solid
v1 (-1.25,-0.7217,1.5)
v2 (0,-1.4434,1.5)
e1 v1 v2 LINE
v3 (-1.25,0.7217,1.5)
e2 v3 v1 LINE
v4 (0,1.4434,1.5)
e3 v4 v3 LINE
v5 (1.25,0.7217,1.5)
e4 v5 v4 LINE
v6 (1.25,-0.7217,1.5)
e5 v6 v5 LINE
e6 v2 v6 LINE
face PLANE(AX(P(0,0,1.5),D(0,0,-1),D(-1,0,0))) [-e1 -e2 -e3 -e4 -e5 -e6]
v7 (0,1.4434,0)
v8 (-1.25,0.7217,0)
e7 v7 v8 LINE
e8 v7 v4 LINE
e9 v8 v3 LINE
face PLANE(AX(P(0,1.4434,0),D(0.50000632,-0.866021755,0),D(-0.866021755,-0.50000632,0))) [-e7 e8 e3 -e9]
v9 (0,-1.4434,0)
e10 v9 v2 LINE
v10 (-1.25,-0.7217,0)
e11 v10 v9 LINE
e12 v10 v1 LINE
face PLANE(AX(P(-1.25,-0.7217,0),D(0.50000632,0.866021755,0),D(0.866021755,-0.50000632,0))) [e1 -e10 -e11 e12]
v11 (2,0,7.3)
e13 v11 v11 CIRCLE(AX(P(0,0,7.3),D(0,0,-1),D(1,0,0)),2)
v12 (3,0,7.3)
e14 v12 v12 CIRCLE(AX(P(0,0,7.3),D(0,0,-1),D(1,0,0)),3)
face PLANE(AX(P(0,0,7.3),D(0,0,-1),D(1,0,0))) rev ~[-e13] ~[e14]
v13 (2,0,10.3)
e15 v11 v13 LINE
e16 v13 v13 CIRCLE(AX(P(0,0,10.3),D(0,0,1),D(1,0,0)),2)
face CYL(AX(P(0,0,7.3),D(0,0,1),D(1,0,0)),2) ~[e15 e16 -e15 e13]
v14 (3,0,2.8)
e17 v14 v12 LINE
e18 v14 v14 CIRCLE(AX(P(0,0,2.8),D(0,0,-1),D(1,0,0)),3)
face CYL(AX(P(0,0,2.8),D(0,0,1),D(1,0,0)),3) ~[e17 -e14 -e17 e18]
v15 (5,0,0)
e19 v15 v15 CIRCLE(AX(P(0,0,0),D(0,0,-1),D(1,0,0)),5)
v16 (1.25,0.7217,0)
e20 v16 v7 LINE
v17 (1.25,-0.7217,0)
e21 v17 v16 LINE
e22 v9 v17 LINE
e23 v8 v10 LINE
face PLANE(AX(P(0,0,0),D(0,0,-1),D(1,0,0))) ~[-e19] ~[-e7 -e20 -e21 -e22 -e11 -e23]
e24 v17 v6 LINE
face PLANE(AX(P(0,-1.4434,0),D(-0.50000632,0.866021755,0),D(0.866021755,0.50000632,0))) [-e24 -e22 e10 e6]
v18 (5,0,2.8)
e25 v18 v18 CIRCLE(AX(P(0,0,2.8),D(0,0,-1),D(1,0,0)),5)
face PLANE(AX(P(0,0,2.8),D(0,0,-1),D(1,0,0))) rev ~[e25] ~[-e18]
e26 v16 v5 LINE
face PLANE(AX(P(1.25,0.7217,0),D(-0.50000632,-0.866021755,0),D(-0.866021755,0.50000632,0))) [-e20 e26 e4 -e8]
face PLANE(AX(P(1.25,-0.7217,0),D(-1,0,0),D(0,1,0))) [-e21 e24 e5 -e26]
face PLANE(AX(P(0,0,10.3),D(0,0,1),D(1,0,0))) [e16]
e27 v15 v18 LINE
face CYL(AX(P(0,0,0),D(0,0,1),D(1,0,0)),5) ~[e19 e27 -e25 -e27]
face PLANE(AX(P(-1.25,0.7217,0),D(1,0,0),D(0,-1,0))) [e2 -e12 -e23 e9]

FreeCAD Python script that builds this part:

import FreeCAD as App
import Part
import Sketcher
Q = App.Units.Quantity


def add_polygon(sketch, points):
    """Adds a closed chain of lines whose ends are joined by coincident constraints."""
    first, n = sketch.GeometryCount, len(points)
    for a, b in zip(points, points[1:] + points[:1]):
        sketch.addGeometry(Part.LineSegment(App.Vector(*a, 0), App.Vector(*b, 0)), False)
    for i in range(n):
        sketch.addConstraint(Sketcher.Constraint("Coincident", first + i, 2, first + (i + 1) % n, 1))

doc = App.newDocument("Part")
params = doc.addObject("Spreadsheet::Sheet", "Params")
for row, (alias, value) in enumerate([
    ("sketch1_width", "5 mm"),
    ("sketch1_height", "4.5 mm"),
    ("sketch1_height2", "2.8 mm"),
    ("sketch1_width2", "1 mm"),
    ("sketch1_width3", "2 mm"),
    ("revolution_angle", "360 deg"),
    ("pocket1_length", "1.5 mm"),
    ("sketch3_diameter", "4 mm"),
    ("pocket2_length", "2 mm"),
], start=1):
    params.set(f"A{row}", alias)
    params.set(f"B{row}", "=" + value)
    params.setAlias(f"B{row}", alias)

body = doc.addObject("PartDesign::Body", "Body")

sketch1 = body.newObject("Sketcher::SketchObject", "Sketch")
sketch1.AttachmentSupport = (doc.getObject("XZ_Plane"), [""])
sketch1.MapMode = "FlatFace"
add_polygon(sketch1, [(5, 0), (0, 0), (0, 12.3), (1.6, 12.3), (2, 11.9), (2, 7.3), (3, 7.3), (3, 2.8), (5, 2.8)])
sketch1.addConstraint([
    Sketcher.Constraint("Horizontal", 0),
    Sketcher.Constraint("Vertical", 1),
    Sketcher.Constraint("Horizontal", 2),
    Sketcher.Constraint("Vertical", 4),
    Sketcher.Constraint("Horizontal", 5),
    Sketcher.Constraint("Vertical", 6),
    Sketcher.Constraint("Horizontal", 7),
    Sketcher.Constraint("Vertical", 8),
    Sketcher.Constraint("Coincident", 0, 2, -1, 1),
    Sketcher.Constraint("DistanceX", 0, 2, 0, 1, 5.0),
    Sketcher.Constraint("DistanceY", 6, 2, 6, 1, 4.5),
    Sketcher.Constraint("DistanceY", 8, 2, 8, 1, 2.8),
    Sketcher.Constraint("DistanceY", 4, 2, 2, 2, 5.0),
    Sketcher.Constraint("DistanceX", 5, 1, 5, 2, 1.0),
    Sketcher.Constraint("DistanceX", 7, 1, 7, 2, 2.0),
    Sketcher.Constraint("Angle", 3, Q("-45 deg")),
    Sketcher.Constraint("DistanceX", 2, 2, 3, 2, 0.43),
])
sketch1.setExpression("Constraints[18]", "Params.sketch1_width")
sketch1.setExpression("Constraints[19]", "Params.sketch1_height")
sketch1.setExpression("Constraints[20]", "Params.sketch1_height2")
sketch1.setExpression("Constraints[22]", "Params.sketch1_width2")
sketch1.setExpression("Constraints[23]", "Params.sketch1_width3")
revolution = body.newObject("PartDesign::Revolution", "Revolution")
revolution.Profile = sketch1
revolution.ReferenceAxis = (sketch1, ["V_Axis"])
revolution.setExpression("Angle", "Params.revolution_angle")

sketch2 = body.newObject("Sketcher::SketchObject", "Sketch001")
sketch2.AttachmentSupport = (doc.getObject("XY_Plane"), [""])
sketch2.MapMode = "FlatFace"
add_polygon(sketch2, [(1.2, -0.7), (0, -1.4), (-1.2, -0.7), (-1.2, 0.7), (0, 1.4), (1.2, 0.7)])
sketch2.addConstraint([
    Sketcher.Constraint("Vertical", 2),
    Sketcher.Constraint("Vertical", 5),
    Sketcher.Constraint("Symmetric", 0, 2, 3, 2, -1, 1),
    Sketcher.Constraint("Symmetric", 1, 2, 4, 2, -1, 1),
    Sketcher.Constraint("PointOnObject", 0, 2, -2),
    Sketcher.Constraint("Parallel", 0, 3),
    Sketcher.Constraint("Horizontal", 2, 2, 4, 2),
    Sketcher.Constraint("DistanceX", 2, 2, 4, 2, 2.5),
    Sketcher.Constraint("Angle", 0, Q("-149.9996 deg")),
    Sketcher.Constraint("DistanceY", 2, 1, 2, 2, 1.4434),
])
pocket1 = body.newObject("PartDesign::Pocket", "Pocket")
pocket1.Profile = sketch2
pocket1.setExpression("Length", "Params.pocket1_length")
pocket1.Reversed = True

sketch3 = body.newObject("Sketcher::SketchObject", "Sketch002")
sketch3.AttachmentSupport = (doc.getObject("XY_Plane"), [""])
sketch3.MapMode = "FlatFace"
sketch3.AttachmentOffset = App.Placement(App.Vector(0, 0, 12.3), App.Rotation())
sketch3.addGeometry(Part.Circle(App.Vector(0, 0, 0), App.Vector(0, 0, 1), 2), False)
sketch3.addConstraint([
    Sketcher.Constraint("Coincident", 0, 3, -1, 1),
    Sketcher.Constraint("Diameter", 0, 4.0),
])
sketch3.setExpression("Constraints[1]", "Params.sketch3_diameter")
pocket2 = body.newObject("PartDesign::Pocket", "Pocket001")
pocket2.Profile = sketch3
pocket2.setExpression("Length", "Params.pocket2_length")

doc.recompute()
